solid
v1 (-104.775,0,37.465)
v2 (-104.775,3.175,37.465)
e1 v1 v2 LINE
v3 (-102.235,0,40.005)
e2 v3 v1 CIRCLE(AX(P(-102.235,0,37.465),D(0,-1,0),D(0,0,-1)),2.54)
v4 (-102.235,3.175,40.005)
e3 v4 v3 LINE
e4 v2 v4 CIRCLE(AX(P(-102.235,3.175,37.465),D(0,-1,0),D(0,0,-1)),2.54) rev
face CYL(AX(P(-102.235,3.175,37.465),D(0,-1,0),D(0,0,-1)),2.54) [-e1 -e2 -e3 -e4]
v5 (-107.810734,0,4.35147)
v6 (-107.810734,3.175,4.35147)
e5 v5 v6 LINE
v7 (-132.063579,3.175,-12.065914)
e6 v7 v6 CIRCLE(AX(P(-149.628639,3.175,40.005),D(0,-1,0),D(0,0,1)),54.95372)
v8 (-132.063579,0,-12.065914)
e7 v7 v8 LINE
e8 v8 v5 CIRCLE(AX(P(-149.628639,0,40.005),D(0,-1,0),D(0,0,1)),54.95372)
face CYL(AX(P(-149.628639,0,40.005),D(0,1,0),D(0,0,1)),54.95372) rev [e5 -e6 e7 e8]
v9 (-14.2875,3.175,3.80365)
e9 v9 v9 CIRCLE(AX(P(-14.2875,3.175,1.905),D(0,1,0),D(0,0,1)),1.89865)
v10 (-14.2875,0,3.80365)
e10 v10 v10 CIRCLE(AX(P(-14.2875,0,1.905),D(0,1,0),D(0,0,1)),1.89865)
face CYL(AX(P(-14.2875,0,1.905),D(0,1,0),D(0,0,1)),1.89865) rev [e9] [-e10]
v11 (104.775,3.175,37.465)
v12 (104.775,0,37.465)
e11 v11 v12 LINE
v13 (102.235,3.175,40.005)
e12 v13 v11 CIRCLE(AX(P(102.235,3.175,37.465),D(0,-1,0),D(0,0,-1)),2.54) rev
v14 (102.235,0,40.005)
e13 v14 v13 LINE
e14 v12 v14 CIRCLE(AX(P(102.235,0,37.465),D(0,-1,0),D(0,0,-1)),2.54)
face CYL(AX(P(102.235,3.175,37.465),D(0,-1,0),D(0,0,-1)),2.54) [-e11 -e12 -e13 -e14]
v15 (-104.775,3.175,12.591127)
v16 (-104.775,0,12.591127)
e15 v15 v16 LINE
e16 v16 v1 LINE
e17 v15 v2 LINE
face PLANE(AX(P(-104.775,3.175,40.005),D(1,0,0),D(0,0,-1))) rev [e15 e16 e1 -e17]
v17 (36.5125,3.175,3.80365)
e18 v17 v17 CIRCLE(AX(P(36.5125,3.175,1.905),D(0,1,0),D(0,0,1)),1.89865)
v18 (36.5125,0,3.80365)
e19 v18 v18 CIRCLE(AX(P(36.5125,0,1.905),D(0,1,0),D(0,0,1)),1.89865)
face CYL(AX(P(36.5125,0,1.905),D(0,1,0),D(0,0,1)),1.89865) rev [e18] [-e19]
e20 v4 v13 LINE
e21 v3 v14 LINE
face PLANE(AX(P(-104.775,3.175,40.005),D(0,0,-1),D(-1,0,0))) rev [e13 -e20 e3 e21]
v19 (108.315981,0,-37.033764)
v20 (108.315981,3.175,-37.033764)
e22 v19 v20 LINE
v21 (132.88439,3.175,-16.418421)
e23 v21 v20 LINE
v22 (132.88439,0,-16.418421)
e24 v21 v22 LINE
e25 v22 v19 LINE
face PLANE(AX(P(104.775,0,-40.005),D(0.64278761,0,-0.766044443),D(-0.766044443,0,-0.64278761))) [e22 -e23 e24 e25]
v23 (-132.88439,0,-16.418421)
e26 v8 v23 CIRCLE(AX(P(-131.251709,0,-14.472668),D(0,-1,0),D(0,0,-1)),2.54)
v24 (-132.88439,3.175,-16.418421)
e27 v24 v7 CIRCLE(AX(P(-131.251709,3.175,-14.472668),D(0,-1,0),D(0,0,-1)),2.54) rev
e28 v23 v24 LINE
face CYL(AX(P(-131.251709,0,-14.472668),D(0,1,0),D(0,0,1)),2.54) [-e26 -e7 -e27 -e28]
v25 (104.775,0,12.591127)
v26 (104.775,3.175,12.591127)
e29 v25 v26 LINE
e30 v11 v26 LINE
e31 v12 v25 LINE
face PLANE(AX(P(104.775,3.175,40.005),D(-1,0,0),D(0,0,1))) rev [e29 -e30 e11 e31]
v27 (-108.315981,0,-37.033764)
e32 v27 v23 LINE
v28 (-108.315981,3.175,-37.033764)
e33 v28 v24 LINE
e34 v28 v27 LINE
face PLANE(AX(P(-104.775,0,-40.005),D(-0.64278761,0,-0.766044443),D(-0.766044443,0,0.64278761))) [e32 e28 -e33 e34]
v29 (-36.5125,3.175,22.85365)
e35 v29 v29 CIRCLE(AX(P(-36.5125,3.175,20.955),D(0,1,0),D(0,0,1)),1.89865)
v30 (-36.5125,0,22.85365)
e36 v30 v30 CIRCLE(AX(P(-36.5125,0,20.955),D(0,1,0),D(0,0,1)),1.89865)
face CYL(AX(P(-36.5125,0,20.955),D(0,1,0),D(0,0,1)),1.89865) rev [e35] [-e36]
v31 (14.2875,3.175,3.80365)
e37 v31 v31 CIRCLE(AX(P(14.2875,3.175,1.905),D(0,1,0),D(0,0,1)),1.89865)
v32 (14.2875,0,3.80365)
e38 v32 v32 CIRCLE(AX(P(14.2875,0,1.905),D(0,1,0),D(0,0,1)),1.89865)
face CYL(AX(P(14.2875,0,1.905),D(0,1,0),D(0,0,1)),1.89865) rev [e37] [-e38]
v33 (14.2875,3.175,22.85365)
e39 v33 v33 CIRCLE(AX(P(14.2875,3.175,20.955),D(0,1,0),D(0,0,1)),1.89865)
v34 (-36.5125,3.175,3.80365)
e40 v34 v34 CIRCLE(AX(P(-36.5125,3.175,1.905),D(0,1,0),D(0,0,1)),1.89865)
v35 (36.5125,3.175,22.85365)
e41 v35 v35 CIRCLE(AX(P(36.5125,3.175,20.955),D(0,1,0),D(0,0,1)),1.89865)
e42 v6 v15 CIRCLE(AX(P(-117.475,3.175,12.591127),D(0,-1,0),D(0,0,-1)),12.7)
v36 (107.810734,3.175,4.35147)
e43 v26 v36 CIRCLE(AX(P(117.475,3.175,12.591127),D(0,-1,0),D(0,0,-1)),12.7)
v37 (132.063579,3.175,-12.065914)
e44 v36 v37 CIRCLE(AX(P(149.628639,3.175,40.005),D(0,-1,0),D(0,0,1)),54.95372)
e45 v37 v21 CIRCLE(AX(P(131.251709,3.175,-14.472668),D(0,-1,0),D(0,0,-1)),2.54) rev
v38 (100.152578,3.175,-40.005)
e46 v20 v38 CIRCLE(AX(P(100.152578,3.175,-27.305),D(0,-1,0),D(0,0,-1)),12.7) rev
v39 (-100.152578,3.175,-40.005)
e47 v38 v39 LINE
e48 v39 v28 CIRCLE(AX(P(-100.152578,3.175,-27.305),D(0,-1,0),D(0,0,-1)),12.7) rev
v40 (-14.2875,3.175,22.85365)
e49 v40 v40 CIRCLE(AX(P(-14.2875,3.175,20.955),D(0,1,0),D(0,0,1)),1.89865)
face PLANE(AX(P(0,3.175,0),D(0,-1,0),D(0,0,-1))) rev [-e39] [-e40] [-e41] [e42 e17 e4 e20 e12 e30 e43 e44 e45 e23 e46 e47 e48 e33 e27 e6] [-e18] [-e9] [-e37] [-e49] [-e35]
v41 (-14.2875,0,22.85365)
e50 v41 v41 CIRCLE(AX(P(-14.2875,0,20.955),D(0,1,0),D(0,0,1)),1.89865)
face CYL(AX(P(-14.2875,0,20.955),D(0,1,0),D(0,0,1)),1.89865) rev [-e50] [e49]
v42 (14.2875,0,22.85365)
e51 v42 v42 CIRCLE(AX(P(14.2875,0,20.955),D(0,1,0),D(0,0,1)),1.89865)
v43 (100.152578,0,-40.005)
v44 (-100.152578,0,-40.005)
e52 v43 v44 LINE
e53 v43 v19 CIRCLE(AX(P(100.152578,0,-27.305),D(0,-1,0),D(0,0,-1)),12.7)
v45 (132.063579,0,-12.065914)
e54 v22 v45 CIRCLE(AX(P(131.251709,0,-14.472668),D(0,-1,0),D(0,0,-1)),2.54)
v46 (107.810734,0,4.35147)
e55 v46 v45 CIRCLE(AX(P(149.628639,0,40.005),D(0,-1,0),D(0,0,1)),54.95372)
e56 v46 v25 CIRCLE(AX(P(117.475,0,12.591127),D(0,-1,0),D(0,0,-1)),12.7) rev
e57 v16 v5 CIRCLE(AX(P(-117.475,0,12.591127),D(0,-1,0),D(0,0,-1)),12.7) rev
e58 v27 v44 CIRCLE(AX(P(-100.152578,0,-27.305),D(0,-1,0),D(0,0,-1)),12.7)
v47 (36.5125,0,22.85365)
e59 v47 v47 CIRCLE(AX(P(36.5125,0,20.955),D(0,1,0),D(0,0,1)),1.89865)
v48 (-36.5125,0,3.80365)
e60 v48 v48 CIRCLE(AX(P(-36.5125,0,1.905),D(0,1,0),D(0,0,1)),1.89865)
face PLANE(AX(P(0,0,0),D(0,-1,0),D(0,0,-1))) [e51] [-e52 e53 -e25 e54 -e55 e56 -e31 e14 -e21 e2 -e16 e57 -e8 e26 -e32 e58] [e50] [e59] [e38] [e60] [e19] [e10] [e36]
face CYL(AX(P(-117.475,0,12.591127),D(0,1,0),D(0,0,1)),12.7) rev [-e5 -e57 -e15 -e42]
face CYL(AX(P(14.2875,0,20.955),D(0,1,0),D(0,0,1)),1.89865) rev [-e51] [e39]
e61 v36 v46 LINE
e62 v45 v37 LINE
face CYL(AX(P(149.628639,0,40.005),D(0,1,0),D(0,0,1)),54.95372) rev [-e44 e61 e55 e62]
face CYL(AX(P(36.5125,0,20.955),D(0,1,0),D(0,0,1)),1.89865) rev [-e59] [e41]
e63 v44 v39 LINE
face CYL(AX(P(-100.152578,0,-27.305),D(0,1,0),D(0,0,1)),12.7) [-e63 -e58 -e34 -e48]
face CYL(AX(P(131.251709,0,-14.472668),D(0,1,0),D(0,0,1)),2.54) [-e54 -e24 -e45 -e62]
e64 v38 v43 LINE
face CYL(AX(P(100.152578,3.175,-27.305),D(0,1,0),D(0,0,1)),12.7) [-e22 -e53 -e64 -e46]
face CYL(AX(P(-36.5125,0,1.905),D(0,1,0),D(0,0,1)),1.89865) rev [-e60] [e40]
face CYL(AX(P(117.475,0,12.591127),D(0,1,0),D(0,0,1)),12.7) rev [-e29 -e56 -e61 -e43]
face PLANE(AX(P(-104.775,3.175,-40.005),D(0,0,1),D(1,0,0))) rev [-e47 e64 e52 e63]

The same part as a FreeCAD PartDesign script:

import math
import FreeCAD as App
import Part
import Sketcher

V = App.Vector
Q = App.Units.Quantity


def edges_at(feature, points):
    """Names of the edges that pass closest to the given points."""
    edges = feature.Shape.Edges
    near = lambda p: min(range(len(edges)), key=lambda i: edges[i].distToShape(Part.Vertex(*p))[0])
    return sorted({f"Edge{near(p) + 1}" for p in points})

doc = App.newDocument("Part")
body = doc.addObject("PartDesign::Body", "Body")

# Sketch on XZ plane
sketch1 = body.newObject("Sketcher::SketchObject", "Sketch")
sketch1.AttachmentSupport = (doc.getObject("XZ_Plane"), [""])
sketch1.MapMode = "FlatFace"
sketch1.addGeometry(Part.LineSegment(V(-105, -40, 0), V(-105, 40, 0)), False)
sketch1.addGeometry(Part.LineSegment(V(-105, 40, 0), V(105, 40, 0)), False)
sketch1.addGeometry(Part.LineSegment(V(105, 40, 0), V(105, -40, 0)), False)
sketch1.addGeometry(Part.LineSegment(V(105, -40, 0), V(-105, -40, 0)), False)
sketch1.addConstraint(Sketcher.Constraint("Coincident", 0, 2, 1, 1))
sketch1.addConstraint(Sketcher.Constraint("Coincident", 1, 2, 2, 1))
sketch1.addConstraint(Sketcher.Constraint("Coincident", 2, 2, 3, 1))
sketch1.addConstraint(Sketcher.Constraint("Coincident", 3, 2, 0, 1))
sketch1.addConstraint(Sketcher.Constraint("Vertical", 0))
sketch1.addConstraint(Sketcher.Constraint("Horizontal", 1))
sketch1.addConstraint(Sketcher.Constraint("Vertical", 2))
sketch1.addConstraint(Sketcher.Constraint("Horizontal", 3))
sketch1.addConstraint(Sketcher.Constraint("Symmetric", 0, 2, 2, 2, -1, 1))
sketch1.addConstraint(Sketcher.Constraint("DistanceX", 1, 1, 1, 2, Q("8.25 in")))
sketch1.addConstraint(Sketcher.Constraint("DistanceY", 0, 1, 0, 2, Q("3.15 in")))
pad1 = body.newObject("PartDesign::Pad", "Pad")
pad1.Profile = sketch1
pad1.Length = Q("0.125 in")
pad1.Reversed = True

# Sketch on XZ plane
sketch2 = body.newObject("Sketcher::SketchObject", "Sketch001")
sketch2.AttachmentSupport = (doc.getObject("XZ_Plane"), [""])
sketch2.MapMode = "FlatFace"
sketch2.AttachmentOffset = App.Placement(V(0, 0, -0.125 * 25.4), App.Rotation())
sketch2.addGeometry(Part.LineSegment(V(137, -13, 0), V(105, -40, 0)), False)
sketch2.addGeometry(Part.LineSegment(V(105, -40, 0), V(105, 8, 0)), False)
sketch2.addGeometry(Part.ArcOfCircle(Part.Circle(V(150, 40, 0), V(0, 0, 1), 55), math.radians(-145), math.radians(-104)), False)
sketch2.addGeometry(Part.LineSegment(V(-105, -40, 0), V(-137, -13, 0)), False)
sketch2.addGeometry(Part.ArcOfCircle(Part.Circle(V(-150, 40, 0), V(0, 0, 1), 55), math.radians(-76), math.radians(-35)), False)
sketch2.addGeometry(Part.LineSegment(V(-105, 8, 0), V(-105, -40, 0)), False)
sketch2.addConstraint(Sketcher.Constraint("Coincident", 0, 2, 1, 1))
sketch2.addConstraint(Sketcher.Constraint("Coincident", 1, 2, 2, 1))
sketch2.addConstraint(Sketcher.Constraint("Coincident", 2, 2, 0, 1))
sketch2.addConstraint(Sketcher.Constraint("Coincident", 3, 2, 4, 1))
sketch2.addConstraint(Sketcher.Constraint("Coincident", 4, 2, 5, 1))
sketch2.addConstraint(Sketcher.Constraint("Coincident", 5, 2, 3, 1))
sketch2.addConstraint(Sketcher.Constraint("Vertical", 1))
sketch2.addConstraint(Sketcher.Constraint("Vertical", 5))
sketch2.addConstraint(Sketcher.Constraint("Equal", 2, 4))
sketch2.addConstraint(Sketcher.Constraint("Symmetric", 2, 3, 4, 3, -2))
sketch2.addConstraint(Sketcher.Constraint("Symmetric", 0, 2, 5, 2, -2))
sketch2.addConstraint(Sketcher.Constraint("Horizontal", 2, 2, 3, 2))
sketch2.addConstraint(Sketcher.Constraint("DistanceY", 1, 1, 1, 2, Q("1.9 in")))
sketch2.addConstraint(Sketcher.Constraint("Angle", 0, Q("-140 deg")))
sketch2.addConstraint(Sketcher.Constraint("DistanceX", 3, 2, 1, 2, Q("9.5 in")))
sketch2.addConstraint(Sketcher.Constraint("DistanceY", 0, 2, 2, 3, Q("3.15 in")))
sketch2.addConstraint(Sketcher.Constraint("DistanceX", 1, 2, 2, 2, Q("1.25 in")))
sketch2.addConstraint(Sketcher.Constraint("DistanceY", -1, 1, 2, 3, Q("1.575 in")))
pad2 = body.newObject("PartDesign::Pad", "Pad001")
pad2.Profile = sketch2
pad2.Type = "UpToLast"

# Sketch on XZ plane
sketch3 = body.newObject("Sketcher::SketchObject", "Sketch002")
sketch3.AttachmentSupport = (doc.getObject("XZ_Plane"), [""])
sketch3.MapMode = "FlatFace"
sketch3.AttachmentOffset = App.Placement(V(0, 0, -0.125 * 25.4), App.Rotation())
sketch3.addGeometry(Part.Circle(V(36.5, 21, 0), V(0, 0, 1), 1.9), False)
sketch3.addGeometry(Part.Circle(V(14.3, 21, 0), V(0, 0, 1), 1.9), False)
sketch3.addGeometry(Part.Circle(V(-14.3, 21, 0), V(0, 0, 1), 1.9), False)
sketch3.addGeometry(Part.Circle(V(-36.5, 21, 0), V(0, 0, 1), 1.9), False)
sketch3.addGeometry(Part.Circle(V(36.5, 1.9, 0), V(0, 0, 1), 1.9), False)
sketch3.addGeometry(Part.Circle(V(14.3, 1.9, 0), V(0, 0, 1), 1.9), False)
sketch3.addGeometry(Part.Circle(V(-14.3, 1.9, 0), V(0, 0, 1), 1.9), False)
sketch3.addGeometry(Part.Circle(V(-36.5, 1.9, 0), V(0, 0, 1), 1.9), False)
sketch3.addConstraint(Sketcher.Constraint("Equal", 0, 1))
sketch3.addConstraint(Sketcher.Constraint("Equal", 1, 2))
sketch3.addConstraint(Sketcher.Constraint("Equal", 2, 3))
sketch3.addConstraint(Sketcher.Constraint("Equal", 3, 4))
sketch3.addConstraint(Sketcher.Constraint("Equal", 4, 5))
sketch3.addConstraint(Sketcher.Constraint("Equal", 5, 6))
sketch3.addConstraint(Sketcher.Constraint("Equal", 6, 7))
sketch3.addConstraint(Sketcher.Constraint("Symmetric", 1, 3, 2, 3, -2))
sketch3.addConstraint(Sketcher.Constraint("Symmetric", 0, 3, 3, 3, -2))
sketch3.addConstraint(Sketcher.Constraint("Symmetric", 5, 3, 6, 3, -2))
sketch3.addConstraint(Sketcher.Constraint("Symmetric", 4, 3, 7, 3, -2))
sketch3.addConstraint(Sketcher.Constraint("Horizontal", 0, 3, 1, 3))
sketch3.addConstraint(Sketcher.Constraint("Horizontal", 4, 3, 5, 3))
sketch3.addConstraint(Sketcher.Constraint("Vertical", 0, 3, 4, 3))
sketch3.addConstraint(Sketcher.Constraint("Vertical", 1, 3, 5, 3))
sketch3.addConstraint(Sketcher.Constraint("DistanceX", 2, 3, 0, 3, Q("2 in")))
sketch3.addConstraint(Sketcher.Constraint("Diameter", 0, Q("0.1495 in")))
sketch3.addConstraint(Sketcher.Constraint("DistanceY", 4, 3, 0, 3, Q("0.75 in")))
sketch3.addConstraint(Sketcher.Constraint("DistanceX", -1, 1, 0, 3, Q("1.4375 in")))
sketch3.addConstraint(Sketcher.Constraint("DistanceY", -1, 1, 0, 3, Q("0.825 in")))
pocket1 = body.newObject("PartDesign::Pocket", "Pocket")
pocket1.Profile = sketch3
pocket1.Type = "ThroughAll"
pocket1.Reversed = True
doc.recompute()

fillet = body.newObject("PartDesign::Fillet", "Fillet")
fillet.Base = (pocket1, edges_at(pocket1, [(104.775, 1.587, 8.255), (-104.775, 1.587, 8.255)]))
fillet.Radius = Q("0.5 in")
doc.recompute()

fillet2 = body.newObject("PartDesign::Fillet", "Fillet001")
fillet2.Base = (fillet, edges_at(fillet, [
    (136.525, 1.587, -13.364),
    (-136.525, 1.587, -13.364),
    (104.775, 1.587, 40.005),
    (-104.775, 1.587, 40.005),
]))
fillet2.Radius = Q("0.1 in")
doc.recompute()

fillet3 = body.newObject("PartDesign::Fillet", "Fillet002")
fillet3.Base = (fillet2, edges_at(fillet2, [(-104.775, 1.587, -40.005), (104.775, 1.587, -40.005)]))
fillet3.Radius = Q("0.5 in")

doc.recompute()
